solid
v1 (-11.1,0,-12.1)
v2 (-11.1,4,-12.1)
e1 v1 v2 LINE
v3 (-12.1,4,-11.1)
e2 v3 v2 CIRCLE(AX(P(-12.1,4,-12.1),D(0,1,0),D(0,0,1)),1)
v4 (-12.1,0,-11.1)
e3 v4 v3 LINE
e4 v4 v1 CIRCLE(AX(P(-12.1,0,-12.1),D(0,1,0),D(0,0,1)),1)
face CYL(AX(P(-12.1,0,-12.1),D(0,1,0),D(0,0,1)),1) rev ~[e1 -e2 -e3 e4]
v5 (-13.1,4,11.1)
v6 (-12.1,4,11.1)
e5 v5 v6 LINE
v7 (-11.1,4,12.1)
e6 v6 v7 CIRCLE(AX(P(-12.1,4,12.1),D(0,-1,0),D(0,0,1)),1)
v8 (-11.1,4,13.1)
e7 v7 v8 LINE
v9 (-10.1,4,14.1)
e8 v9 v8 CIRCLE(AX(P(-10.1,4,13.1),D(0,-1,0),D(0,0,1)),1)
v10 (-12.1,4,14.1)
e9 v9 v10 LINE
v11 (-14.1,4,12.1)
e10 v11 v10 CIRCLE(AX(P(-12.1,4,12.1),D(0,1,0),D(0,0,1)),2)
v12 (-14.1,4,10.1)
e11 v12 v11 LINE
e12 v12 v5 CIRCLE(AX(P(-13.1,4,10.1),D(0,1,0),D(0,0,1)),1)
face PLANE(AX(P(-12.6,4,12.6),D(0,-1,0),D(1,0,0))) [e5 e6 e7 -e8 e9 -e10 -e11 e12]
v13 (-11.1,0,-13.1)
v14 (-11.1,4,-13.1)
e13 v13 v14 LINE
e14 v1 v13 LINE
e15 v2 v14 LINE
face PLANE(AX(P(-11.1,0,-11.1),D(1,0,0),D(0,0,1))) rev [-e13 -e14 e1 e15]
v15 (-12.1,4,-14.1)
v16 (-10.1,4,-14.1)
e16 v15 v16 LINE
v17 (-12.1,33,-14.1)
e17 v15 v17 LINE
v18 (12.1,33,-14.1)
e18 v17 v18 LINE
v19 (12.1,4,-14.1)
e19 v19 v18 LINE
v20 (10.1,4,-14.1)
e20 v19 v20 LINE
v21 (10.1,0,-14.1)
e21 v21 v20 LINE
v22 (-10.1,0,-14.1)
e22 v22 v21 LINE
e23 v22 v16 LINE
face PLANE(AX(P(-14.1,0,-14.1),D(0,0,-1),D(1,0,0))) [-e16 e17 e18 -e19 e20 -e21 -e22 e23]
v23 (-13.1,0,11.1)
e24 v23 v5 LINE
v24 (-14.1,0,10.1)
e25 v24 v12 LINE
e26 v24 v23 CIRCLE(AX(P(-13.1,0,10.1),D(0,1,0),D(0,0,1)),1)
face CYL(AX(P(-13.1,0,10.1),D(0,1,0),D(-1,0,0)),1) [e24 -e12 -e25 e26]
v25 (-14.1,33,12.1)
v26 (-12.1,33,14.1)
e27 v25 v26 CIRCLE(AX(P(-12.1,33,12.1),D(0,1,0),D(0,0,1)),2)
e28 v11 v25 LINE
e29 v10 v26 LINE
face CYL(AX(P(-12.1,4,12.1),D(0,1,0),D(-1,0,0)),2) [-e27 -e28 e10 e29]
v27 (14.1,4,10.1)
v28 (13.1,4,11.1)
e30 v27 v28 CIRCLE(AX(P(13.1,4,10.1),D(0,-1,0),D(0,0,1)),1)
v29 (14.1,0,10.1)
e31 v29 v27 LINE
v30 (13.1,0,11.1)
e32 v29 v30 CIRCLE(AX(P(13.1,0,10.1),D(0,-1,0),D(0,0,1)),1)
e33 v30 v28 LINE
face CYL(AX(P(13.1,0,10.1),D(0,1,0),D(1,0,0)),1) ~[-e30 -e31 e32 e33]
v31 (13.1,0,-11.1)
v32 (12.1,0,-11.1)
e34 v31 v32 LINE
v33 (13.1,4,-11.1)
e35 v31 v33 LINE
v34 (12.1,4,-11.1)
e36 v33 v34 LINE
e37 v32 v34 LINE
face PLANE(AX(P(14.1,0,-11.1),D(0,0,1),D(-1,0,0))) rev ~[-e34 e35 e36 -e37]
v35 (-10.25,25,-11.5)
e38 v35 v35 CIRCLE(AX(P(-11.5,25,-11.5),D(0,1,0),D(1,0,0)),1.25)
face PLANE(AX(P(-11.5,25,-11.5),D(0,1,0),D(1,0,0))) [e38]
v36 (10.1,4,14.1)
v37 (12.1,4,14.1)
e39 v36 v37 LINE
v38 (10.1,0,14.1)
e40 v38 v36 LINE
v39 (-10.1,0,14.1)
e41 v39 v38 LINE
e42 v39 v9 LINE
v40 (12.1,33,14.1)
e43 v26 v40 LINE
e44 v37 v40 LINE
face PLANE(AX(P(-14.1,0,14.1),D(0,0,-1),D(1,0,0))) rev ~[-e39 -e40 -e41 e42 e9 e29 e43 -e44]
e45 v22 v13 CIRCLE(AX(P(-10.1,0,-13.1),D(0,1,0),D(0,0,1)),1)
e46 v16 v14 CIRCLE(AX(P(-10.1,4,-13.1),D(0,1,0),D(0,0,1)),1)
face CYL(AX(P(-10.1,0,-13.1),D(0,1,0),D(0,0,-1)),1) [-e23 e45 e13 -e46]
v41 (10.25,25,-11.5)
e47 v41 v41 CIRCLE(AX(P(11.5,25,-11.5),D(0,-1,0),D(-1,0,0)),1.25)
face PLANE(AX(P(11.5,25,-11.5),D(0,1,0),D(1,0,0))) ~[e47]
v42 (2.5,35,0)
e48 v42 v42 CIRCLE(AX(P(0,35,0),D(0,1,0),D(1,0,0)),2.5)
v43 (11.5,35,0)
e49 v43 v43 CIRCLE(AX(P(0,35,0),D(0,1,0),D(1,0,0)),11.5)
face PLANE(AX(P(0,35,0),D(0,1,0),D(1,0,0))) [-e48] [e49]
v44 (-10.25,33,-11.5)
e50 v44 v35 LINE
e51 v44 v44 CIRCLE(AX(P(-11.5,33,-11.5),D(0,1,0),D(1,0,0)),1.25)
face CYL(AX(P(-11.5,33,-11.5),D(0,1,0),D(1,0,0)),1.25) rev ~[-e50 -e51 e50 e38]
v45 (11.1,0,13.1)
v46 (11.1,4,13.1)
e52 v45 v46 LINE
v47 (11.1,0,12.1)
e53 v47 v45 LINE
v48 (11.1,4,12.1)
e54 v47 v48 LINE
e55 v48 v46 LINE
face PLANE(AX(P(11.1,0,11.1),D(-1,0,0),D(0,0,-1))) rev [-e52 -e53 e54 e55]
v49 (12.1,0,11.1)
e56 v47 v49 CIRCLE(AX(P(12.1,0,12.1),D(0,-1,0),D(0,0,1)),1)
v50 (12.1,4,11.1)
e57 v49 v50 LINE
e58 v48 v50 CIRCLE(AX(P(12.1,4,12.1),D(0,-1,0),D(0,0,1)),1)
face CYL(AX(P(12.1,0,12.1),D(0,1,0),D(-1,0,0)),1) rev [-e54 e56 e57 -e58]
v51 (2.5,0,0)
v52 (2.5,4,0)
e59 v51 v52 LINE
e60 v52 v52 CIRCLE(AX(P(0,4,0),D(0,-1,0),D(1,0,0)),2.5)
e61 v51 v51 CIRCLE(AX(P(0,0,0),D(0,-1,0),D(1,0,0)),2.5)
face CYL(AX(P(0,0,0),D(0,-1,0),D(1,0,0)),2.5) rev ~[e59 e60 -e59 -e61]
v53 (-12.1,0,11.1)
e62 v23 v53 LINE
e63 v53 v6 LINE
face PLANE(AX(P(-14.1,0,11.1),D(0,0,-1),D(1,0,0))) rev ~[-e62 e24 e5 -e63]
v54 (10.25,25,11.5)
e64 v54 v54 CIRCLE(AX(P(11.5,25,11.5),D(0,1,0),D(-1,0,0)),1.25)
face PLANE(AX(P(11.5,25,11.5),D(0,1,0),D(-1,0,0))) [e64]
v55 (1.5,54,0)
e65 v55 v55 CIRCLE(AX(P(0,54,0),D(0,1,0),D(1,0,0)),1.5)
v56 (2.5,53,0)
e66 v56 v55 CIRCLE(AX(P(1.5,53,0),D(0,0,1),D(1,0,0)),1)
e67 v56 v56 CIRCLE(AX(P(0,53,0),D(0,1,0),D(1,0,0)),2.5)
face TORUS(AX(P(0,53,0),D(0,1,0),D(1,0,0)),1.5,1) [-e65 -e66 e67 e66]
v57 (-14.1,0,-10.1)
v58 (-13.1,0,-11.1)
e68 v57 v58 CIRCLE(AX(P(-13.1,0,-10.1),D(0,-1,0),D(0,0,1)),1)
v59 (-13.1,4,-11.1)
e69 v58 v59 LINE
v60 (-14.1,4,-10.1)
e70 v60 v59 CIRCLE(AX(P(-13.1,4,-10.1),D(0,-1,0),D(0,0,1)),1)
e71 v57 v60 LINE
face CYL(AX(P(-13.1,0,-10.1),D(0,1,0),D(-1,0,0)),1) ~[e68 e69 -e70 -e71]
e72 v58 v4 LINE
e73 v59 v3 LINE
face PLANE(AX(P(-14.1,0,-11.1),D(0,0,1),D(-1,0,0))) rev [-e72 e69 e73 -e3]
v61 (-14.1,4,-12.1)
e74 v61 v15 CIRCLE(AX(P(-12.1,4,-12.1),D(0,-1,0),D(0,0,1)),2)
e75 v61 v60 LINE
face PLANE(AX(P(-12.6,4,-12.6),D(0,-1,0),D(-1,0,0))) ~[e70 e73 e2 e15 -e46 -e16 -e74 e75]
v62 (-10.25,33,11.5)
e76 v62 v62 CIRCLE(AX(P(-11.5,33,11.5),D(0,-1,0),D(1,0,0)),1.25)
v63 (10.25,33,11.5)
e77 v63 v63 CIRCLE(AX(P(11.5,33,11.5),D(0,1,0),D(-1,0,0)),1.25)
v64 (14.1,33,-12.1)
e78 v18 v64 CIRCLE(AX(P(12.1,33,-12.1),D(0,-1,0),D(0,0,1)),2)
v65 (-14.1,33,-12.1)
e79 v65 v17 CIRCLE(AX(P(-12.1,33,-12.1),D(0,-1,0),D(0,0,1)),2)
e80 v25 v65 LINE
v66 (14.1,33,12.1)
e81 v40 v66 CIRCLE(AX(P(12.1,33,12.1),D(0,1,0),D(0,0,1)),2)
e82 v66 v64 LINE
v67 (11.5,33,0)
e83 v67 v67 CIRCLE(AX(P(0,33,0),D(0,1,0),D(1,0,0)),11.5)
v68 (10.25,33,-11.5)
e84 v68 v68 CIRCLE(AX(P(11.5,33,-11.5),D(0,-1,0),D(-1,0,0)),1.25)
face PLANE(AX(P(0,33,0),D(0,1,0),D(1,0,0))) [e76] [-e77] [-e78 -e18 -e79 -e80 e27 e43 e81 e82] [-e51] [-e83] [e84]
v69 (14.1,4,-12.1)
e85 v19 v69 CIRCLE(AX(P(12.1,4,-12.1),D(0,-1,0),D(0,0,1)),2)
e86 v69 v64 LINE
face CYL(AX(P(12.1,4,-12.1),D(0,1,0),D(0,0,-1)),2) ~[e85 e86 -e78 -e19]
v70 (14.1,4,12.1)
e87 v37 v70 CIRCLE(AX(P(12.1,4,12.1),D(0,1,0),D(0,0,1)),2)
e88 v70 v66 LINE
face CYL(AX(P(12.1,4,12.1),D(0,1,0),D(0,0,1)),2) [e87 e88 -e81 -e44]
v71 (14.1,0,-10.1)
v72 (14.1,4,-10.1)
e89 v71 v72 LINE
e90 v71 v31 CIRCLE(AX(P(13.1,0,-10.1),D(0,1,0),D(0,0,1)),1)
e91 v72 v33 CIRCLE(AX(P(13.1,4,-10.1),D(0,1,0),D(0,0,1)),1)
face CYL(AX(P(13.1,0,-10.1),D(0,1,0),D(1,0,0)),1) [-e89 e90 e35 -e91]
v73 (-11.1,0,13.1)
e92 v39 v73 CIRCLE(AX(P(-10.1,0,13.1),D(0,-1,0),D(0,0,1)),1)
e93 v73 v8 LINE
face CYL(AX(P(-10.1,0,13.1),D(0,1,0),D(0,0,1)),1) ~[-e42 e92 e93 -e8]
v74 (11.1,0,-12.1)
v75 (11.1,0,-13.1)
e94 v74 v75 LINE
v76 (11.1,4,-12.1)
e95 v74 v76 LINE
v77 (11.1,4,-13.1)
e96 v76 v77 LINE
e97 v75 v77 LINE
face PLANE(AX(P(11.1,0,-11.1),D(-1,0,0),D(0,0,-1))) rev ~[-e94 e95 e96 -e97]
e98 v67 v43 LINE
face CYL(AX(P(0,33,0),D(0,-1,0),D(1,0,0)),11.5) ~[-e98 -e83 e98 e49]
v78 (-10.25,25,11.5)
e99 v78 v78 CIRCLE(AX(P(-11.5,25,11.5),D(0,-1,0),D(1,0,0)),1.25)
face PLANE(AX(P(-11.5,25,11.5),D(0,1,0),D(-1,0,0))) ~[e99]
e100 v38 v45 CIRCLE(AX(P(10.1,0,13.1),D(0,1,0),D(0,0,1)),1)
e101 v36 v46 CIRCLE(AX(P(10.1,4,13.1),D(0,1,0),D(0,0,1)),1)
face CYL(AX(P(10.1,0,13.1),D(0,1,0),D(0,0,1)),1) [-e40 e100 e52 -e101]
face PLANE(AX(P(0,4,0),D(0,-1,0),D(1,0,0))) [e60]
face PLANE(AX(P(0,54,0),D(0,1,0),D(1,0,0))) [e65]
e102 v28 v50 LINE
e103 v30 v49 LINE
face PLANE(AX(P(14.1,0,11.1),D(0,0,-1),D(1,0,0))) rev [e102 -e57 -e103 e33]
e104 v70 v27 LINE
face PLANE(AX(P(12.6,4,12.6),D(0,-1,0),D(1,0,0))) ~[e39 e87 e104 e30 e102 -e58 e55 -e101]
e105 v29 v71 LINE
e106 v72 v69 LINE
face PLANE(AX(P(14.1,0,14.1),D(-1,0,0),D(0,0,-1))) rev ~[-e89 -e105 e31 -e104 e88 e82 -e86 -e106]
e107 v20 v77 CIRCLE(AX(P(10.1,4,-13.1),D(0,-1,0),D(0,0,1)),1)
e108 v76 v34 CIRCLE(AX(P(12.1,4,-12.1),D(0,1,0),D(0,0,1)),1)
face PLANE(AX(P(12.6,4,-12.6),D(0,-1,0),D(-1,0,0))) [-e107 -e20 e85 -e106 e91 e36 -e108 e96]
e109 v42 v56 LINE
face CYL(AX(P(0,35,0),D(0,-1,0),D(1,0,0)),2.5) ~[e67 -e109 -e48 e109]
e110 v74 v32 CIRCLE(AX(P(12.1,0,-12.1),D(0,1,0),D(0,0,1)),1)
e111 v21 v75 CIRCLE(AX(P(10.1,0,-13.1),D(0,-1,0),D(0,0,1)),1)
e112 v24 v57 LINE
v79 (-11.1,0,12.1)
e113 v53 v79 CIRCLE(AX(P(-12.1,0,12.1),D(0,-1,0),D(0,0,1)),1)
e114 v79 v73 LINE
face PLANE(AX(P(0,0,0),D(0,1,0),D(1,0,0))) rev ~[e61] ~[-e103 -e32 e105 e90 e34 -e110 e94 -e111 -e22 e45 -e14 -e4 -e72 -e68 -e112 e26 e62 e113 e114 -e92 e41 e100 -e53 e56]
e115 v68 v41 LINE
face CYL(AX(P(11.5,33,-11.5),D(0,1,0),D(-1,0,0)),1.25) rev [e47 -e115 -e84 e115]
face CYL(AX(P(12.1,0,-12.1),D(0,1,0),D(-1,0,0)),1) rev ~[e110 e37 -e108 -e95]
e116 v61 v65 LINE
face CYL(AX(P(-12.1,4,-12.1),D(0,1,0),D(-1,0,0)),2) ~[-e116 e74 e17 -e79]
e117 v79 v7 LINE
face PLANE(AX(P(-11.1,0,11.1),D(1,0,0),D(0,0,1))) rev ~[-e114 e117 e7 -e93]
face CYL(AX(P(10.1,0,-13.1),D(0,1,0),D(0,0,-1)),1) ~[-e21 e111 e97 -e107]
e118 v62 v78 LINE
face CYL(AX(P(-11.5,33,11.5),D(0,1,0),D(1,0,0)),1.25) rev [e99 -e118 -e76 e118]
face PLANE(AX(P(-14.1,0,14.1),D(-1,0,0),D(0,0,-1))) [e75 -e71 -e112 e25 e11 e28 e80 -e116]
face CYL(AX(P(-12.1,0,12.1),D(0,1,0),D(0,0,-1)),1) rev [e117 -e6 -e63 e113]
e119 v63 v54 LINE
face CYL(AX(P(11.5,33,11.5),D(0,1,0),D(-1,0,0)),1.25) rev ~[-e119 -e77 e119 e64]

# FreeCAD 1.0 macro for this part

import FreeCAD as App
import Part
import Sketcher


def edges_at(feature, points):
    """Names of the edges that pass closest to the given points."""
    edges = feature.Shape.Edges
    near = lambda p: min(range(len(edges)), key=lambda i: edges[i].distToShape(Part.Vertex(*p))[0])
    return sorted({f"Edge{near(p) + 1}" for p in points})


def add_polygon(sketch, points):
    """Adds a closed chain of lines whose ends are joined by coincident constraints."""
    first, n = sketch.GeometryCount, len(points)
    for a, b in zip(points, points[1:] + points[:1]):
        sketch.addGeometry(Part.LineSegment(App.Vector(*a, 0), App.Vector(*b, 0)), False)
    for i in range(n):
        sketch.addConstraint(Sketcher.Constraint("Coincident", first + i, 2, first + (i + 1) % n, 1))

doc = App.newDocument("Part")
params = doc.addObject("Spreadsheet::Sheet", "Params")
for row, (alias, value) in enumerate([
    ("sketch1_width", "28.2 mm"),
    ("pad1_length", "33 mm"),
    ("sketch2_diameter", "23 mm"),
    ("pad2_length", "2 mm"),
    ("sketch3_diameter", "5 mm"),
    ("pad3_length", "19 mm"),
    ("sketch4_diameter", "2.5 mm"),
    ("pocket1_length", "8 mm"),
    ("sketch5_diameter", "2.5 mm"),
    ("pocket2_length", "8 mm"),
    ("sketch6_width", "3 mm"),
    ("pocket3_length", "4 mm"),
    ("sketch7_width", "3 mm"),
    ("pocket4_length", "4 mm"),
    ("sketch8_diameter", "5 mm"),
    ("pocket5_length", "4 mm"),
    ("fillet_radius", "2 mm"),
    ("fillet2_radius", "1 mm"),
    ("fillet3_radius", "1 mm"),
], start=1):
    params.set(f"A{row}", alias)
    params.set(f"B{row}", "=" + value)
    params.setAlias(f"B{row}", alias)

body = doc.addObject("PartDesign::Body", "Body")

sketch1 = doc.addObject("Sketcher::SketchObject", "Sketch")
body.addObject(sketch1)
sketch1.AttachmentSupport = (doc.XZ_Plane, [""])
sketch1.MapMode = "FlatFace"
add_polygon(sketch1, [(-14, -14), (-14, 14), (14, 14), (14, -14)])
sketch1.addConstraint([
    Sketcher.Constraint("Vertical", 0),
    Sketcher.Constraint("Horizontal", 1),
    Sketcher.Constraint("Vertical", 2),
    Sketcher.Constraint("Horizontal", 3),
    Sketcher.Constraint("Symmetric", 0, 2, 2, 2, -1, 1),
    Sketcher.Constraint("Equal", 3, 0),
    Sketcher.Constraint("DistanceX", 1, 1, 1, 2, 28.2),
])
sketch1.setExpression("Constraints[10]", "Params.sketch1_width")
pad1 = doc.addObject("PartDesign::Pad", "Pad")
body.addObject(pad1)
pad1.Profile = sketch1
pad1.setExpression("Length", "Params.pad1_length")
pad1.Reversed = True

sketch2 = doc.addObject("Sketcher::SketchObject", "Sketch001")
body.addObject(sketch2)
sketch2.AttachmentSupport = (doc.XZ_Plane, [""])
sketch2.MapMode = "FlatFace"
sketch2.AttachmentOffset = App.Placement(App.Vector(0, 0, -33), App.Rotation())
sketch2.addGeometry(Part.Circle(App.Vector(0, 0, 0), App.Vector(0, 0, 1), 12), False)
sketch2.addConstraint([
    Sketcher.Constraint("Coincident", 0, 3, -1, 1),
    Sketcher.Constraint("Diameter", 0, 23.0),
])
sketch2.setExpression("Constraints[1]", "Params.sketch2_diameter")
pad2 = doc.addObject("PartDesign::Pad", "Pad001")
body.addObject(pad2)
pad2.Profile = sketch2
pad2.setExpression("Length", "Params.pad2_length")
pad2.Reversed = True

sketch3 = doc.addObject("Sketcher::SketchObject", "Sketch002")
body.addObject(sketch3)
sketch3.AttachmentSupport = (doc.XZ_Plane, [""])
sketch3.MapMode = "FlatFace"
sketch3.AttachmentOffset = App.Placement(App.Vector(0, 0, -35), App.Rotation())
sketch3.addGeometry(Part.Circle(App.Vector(0, 0, 0), App.Vector(0, 0, 1), 2.5), False)
sketch3.addConstraint([
    Sketcher.Constraint("Coincident", 0, 3, -1, 1),
    Sketcher.Constraint("Diameter", 0, 5.0),
])
sketch3.setExpression("Constraints[1]", "Params.sketch3_diameter")
pad3 = doc.addObject("PartDesign::Pad", "Pad002")
body.addObject(pad3)
pad3.Profile = sketch3
pad3.setExpression("Length", "Params.pad3_length")
pad3.Reversed = True

sketch4 = doc.addObject("Sketcher::SketchObject", "Sketch003")
body.addObject(sketch4)
sketch4.AttachmentSupport = (doc.XZ_Plane, [""])
sketch4.MapMode = "FlatFace"
sketch4.AttachmentOffset = App.Placement(App.Vector(0, 0, -33), App.Rotation())
sketch4.addGeometry(Part.Circle(App.Vector(-11.5, -11.5, 0), App.Vector(0, 0, 1), 1.2), False)
sketch4.addConstraint([
    Sketcher.Constraint("Diameter", 0, 2.5),
    Sketcher.Constraint("DistanceX", 0, 3, -1, 1, 11.5),
    Sketcher.Constraint("DistanceY", 0, 3, -1, 1, 11.5),
])
sketch4.setExpression("Constraints[0]", "Params.sketch4_diameter")
pocket1 = doc.addObject("PartDesign::Pocket", "Pocket")
body.addObject(pocket1)
pocket1.Profile = sketch4
pocket1.setExpression("Length", "Params.pocket1_length")
pocket1.Reversed = True
doc.recompute()

mirrored = doc.addObject("PartDesign::Mirrored", "Mirrored")
body.addObject(mirrored)
mirrored.Originals = [pocket1]
mirrored.MirrorPlane = (doc.YZ_Plane, [""])
body.Tip = mirrored
doc.recompute()

mirrored2 = doc.addObject("PartDesign::Mirrored", "Mirrored001")
body.addObject(mirrored2)
mirrored2.Originals = [pocket1]
mirrored2.MirrorPlane = (doc.XY_Plane, [""])
body.Tip = mirrored2

sketch5 = doc.addObject("Sketcher::SketchObject", "Sketch004")
body.addObject(sketch5)
sketch5.AttachmentSupport = (doc.XZ_Plane, [""])
sketch5.MapMode = "FlatFace"
sketch5.AttachmentOffset = App.Placement(App.Vector(0, 0, -33), App.Rotation())
sketch5.addGeometry(Part.Circle(App.Vector(11.5, 11.5, 0), App.Vector(0, 0, 1), 1.2), False)
sketch5.addConstraint([
    Sketcher.Constraint("Diameter", 0, 2.5),
    Sketcher.Constraint("DistanceX", -1, 1, 0, 3, 11.5),
    Sketcher.Constraint("DistanceY", -1, 1, 0, 3, 11.5),
])
sketch5.setExpression("Constraints[0]", "Params.sketch5_diameter")
pocket2 = doc.addObject("PartDesign::Pocket", "Pocket001")
body.addObject(pocket2)
pocket2.Profile = sketch5
pocket2.setExpression("Length", "Params.pocket2_length")
pocket2.Reversed = True

sketch6 = doc.addObject("Sketcher::SketchObject", "Sketch005")
body.addObject(sketch6)
sketch6.AttachmentSupport = (doc.XZ_Plane, [""])
sketch6.MapMode = "FlatFace"
add_polygon(sketch6, [(-14.1, 14.1), (-14.1, 11.1), (-11.1, 11.1), (-11.1, 14.1)])
sketch6.addConstraint([
    Sketcher.Constraint("Vertical", 0),
    Sketcher.Constraint("Horizontal", 1),
    Sketcher.Constraint("Vertical", 2),
    Sketcher.Constraint("Horizontal", 3),
    Sketcher.Constraint("Equal", 3, 0),
    Sketcher.Constraint("DistanceX", 1, 1, 1, 2, 3.0),
    Sketcher.Constraint("DistanceX", 0, 2, -1, 1, 14.1),
    Sketcher.Constraint("DistanceY", -1, 1, 0, 2, 11.1),
])
sketch6.setExpression("Constraints[9]", "Params.sketch6_width")
pocket3 = doc.addObject("PartDesign::Pocket", "Pocket002")
body.addObject(pocket3)
pocket3.Profile = sketch6
pocket3.setExpression("Length", "Params.pocket3_length")
doc.recompute()

mirrored3 = doc.addObject("PartDesign::Mirrored", "Mirrored002")
body.addObject(mirrored3)
mirrored3.Originals = [pocket3]
mirrored3.MirrorPlane = (doc.YZ_Plane, [""])
body.Tip = mirrored3
doc.recompute()

mirrored4 = doc.addObject("PartDesign::Mirrored", "Mirrored003")
body.addObject(mirrored4)
mirrored4.Originals = [pocket3]
mirrored4.MirrorPlane = (doc.XY_Plane, [""])
body.Tip = mirrored4

sketch7 = doc.addObject("Sketcher::SketchObject", "Sketch006")
body.addObject(sketch7)
sketch7.AttachmentSupport = (doc.XZ_Plane, [""])
sketch7.MapMode = "FlatFace"
add_polygon(sketch7, [(14.1, -14.1), (14.1, -11.1), (11.1, -11.1), (11.1, -14.1)])
sketch7.addConstraint([
    Sketcher.Constraint("Vertical", 0),
    Sketcher.Constraint("Horizontal", 1),
    Sketcher.Constraint("Vertical", 2),
    Sketcher.Constraint("Horizontal", 3),
    Sketcher.Constraint("Equal", 3, 0),
    Sketcher.Constraint("DistanceX", 1, 2, 1, 1, 3.0),
    Sketcher.Constraint("DistanceX", -1, 1, 0, 2, 14.1),
    Sketcher.Constraint("DistanceY", 0, 2, -1, 1, 11.1),
])
sketch7.setExpression("Constraints[9]", "Params.sketch7_width")
pocket4 = doc.addObject("PartDesign::Pocket", "Pocket003")
body.addObject(pocket4)
pocket4.Profile = sketch7
pocket4.setExpression("Length", "Params.pocket4_length")

sketch8 = doc.addObject("Sketcher::SketchObject", "Sketch007")
body.addObject(sketch8)
sketch8.AttachmentSupport = (doc.XZ_Plane, [""])
sketch8.MapMode = "FlatFace"
sketch8.addGeometry(Part.Circle(App.Vector(0, 0, 0), App.Vector(0, 0, 1), 2.5), False)
sketch8.addConstraint([
    Sketcher.Constraint("Coincident", 0, 3, -1, 1),
    Sketcher.Constraint("Diameter", 0, 5.0),
])
sketch8.setExpression("Constraints[1]", "Params.sketch8_diameter")
pocket5 = doc.addObject("PartDesign::Pocket", "Pocket004")
body.addObject(pocket5)
pocket5.Profile = sketch8
pocket5.setExpression("Length", "Params.pocket5_length")
doc.recompute()

fillet = doc.addObject("PartDesign::Fillet", "Fillet")
body.addObject(fillet)
fillet.Base = (pocket5, edges_at(pocket5, [
    (14.1, 18.5, 14.1),
    (-14.1, 18.5, 14.1),
    (-14.1, 18.5, -14.1),
    (14.1, 18.5, -14.1),
]))
fillet.setExpression("Radius", "Params.fillet_radius")
doc.recompute()

fillet2 = doc.addObject("PartDesign::Fillet", "Fillet001")
body.addObject(fillet2)
fillet2.Base = (fillet, edges_at(fillet, [
    (-14.1, 2, 11.1),
    (-11.1, 2, 14.1),
    (-11.1, 2, 11.1),
    (14.1, 2, 11.1),
    (11.1, 2, 11.1),
    (11.1, 2, 14.1),
    (-14.1, 2, -11.1),
    (-11.1, 2, -11.1),
    (-11.1, 2, -14.1),
    (14.1, 2, -11.1),
    (11.1, 2, -14.1),
    (11.1, 2, -11.1),
]))
fillet2.setExpression("Radius", "Params.fillet2_radius")
doc.recompute()

fillet3 = doc.addObject("PartDesign::Fillet", "Fillet002")
body.addObject(fillet3)
fillet3.Base = (fillet2, edges_at(fillet2, [(-2.5, 54, 0)]))
fillet3.setExpression("Radius", "Params.fillet3_radius")

doc.recompute()
